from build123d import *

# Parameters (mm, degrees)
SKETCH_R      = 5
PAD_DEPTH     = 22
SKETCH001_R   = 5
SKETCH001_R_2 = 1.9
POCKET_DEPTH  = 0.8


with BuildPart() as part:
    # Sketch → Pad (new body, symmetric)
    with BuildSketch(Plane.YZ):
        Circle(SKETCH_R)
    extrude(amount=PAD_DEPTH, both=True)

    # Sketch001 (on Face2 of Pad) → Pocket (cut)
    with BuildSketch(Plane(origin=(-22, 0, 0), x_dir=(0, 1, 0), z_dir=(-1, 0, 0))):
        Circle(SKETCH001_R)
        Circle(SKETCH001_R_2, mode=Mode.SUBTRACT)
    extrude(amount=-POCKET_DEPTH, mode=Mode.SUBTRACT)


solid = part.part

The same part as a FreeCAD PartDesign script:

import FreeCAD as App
import Part
import Sketcher
from FreeCAD import Vector

doc = App.newDocument("Part")
body = doc.addObject("PartDesign::Body", "Body")

# Sketch on YZ plane
sketch1 = doc.addObject("Sketcher::SketchObject", "Sketch")
body.addObject(sketch1)
sketch1.AttachmentSupport = (doc.YZ_Plane, [""])
sketch1.MapMode = "FlatFace"
sketch1.addGeometry(Part.Circle(Vector(0, 0, 0), Vector(0, 0, 1), 5), False)
sketch1.addConstraint(Sketcher.Constraint("Coincident", 0, 3, -1, 1))
sketch1.addConstraint(Sketcher.Constraint("Diameter", 0, 10.0))
pad1 = doc.addObject("PartDesign::Pad", "Pad")
body.addObject(pad1)
pad1.Profile = sketch1
pad1.Length = 44
pad1.Midplane = True

# Sketch on YZ plane
sketch2 = doc.addObject("Sketcher::SketchObject", "Sketch001")
body.addObject(sketch2)
sketch2.AttachmentSupport = (doc.YZ_Plane, [""])
sketch2.MapMode = "FlatFace"
sketch2.AttachmentOffset = App.Placement(Vector(0, 0, -22), App.Rotation())
sketch2.addGeometry(Part.Circle(Vector(0, 0, 0), Vector(0, 0, 1), 5), False)
sketch2.addGeometry(Part.Circle(Vector(0, 0, 0), Vector(0, 0, 1), 1.9), False)
sketch2.addConstraint(Sketcher.Constraint("Coincident", 0, 3, -1, 1))
sketch2.addConstraint(Sketcher.Constraint("Coincident", 1, 3, -1, 1))
sketch2.addConstraint(Sketcher.Constraint("Diameter", 0, 10.0))
sketch2.addConstraint(Sketcher.Constraint("Diameter", 1, 3.8))
pocket1 = doc.addObject("PartDesign::Pocket", "Pocket")
body.addObject(pocket1)
pocket1.Profile = sketch2
pocket1.Length = 0.8
pocket1.Reversed = True

doc.recompute()
